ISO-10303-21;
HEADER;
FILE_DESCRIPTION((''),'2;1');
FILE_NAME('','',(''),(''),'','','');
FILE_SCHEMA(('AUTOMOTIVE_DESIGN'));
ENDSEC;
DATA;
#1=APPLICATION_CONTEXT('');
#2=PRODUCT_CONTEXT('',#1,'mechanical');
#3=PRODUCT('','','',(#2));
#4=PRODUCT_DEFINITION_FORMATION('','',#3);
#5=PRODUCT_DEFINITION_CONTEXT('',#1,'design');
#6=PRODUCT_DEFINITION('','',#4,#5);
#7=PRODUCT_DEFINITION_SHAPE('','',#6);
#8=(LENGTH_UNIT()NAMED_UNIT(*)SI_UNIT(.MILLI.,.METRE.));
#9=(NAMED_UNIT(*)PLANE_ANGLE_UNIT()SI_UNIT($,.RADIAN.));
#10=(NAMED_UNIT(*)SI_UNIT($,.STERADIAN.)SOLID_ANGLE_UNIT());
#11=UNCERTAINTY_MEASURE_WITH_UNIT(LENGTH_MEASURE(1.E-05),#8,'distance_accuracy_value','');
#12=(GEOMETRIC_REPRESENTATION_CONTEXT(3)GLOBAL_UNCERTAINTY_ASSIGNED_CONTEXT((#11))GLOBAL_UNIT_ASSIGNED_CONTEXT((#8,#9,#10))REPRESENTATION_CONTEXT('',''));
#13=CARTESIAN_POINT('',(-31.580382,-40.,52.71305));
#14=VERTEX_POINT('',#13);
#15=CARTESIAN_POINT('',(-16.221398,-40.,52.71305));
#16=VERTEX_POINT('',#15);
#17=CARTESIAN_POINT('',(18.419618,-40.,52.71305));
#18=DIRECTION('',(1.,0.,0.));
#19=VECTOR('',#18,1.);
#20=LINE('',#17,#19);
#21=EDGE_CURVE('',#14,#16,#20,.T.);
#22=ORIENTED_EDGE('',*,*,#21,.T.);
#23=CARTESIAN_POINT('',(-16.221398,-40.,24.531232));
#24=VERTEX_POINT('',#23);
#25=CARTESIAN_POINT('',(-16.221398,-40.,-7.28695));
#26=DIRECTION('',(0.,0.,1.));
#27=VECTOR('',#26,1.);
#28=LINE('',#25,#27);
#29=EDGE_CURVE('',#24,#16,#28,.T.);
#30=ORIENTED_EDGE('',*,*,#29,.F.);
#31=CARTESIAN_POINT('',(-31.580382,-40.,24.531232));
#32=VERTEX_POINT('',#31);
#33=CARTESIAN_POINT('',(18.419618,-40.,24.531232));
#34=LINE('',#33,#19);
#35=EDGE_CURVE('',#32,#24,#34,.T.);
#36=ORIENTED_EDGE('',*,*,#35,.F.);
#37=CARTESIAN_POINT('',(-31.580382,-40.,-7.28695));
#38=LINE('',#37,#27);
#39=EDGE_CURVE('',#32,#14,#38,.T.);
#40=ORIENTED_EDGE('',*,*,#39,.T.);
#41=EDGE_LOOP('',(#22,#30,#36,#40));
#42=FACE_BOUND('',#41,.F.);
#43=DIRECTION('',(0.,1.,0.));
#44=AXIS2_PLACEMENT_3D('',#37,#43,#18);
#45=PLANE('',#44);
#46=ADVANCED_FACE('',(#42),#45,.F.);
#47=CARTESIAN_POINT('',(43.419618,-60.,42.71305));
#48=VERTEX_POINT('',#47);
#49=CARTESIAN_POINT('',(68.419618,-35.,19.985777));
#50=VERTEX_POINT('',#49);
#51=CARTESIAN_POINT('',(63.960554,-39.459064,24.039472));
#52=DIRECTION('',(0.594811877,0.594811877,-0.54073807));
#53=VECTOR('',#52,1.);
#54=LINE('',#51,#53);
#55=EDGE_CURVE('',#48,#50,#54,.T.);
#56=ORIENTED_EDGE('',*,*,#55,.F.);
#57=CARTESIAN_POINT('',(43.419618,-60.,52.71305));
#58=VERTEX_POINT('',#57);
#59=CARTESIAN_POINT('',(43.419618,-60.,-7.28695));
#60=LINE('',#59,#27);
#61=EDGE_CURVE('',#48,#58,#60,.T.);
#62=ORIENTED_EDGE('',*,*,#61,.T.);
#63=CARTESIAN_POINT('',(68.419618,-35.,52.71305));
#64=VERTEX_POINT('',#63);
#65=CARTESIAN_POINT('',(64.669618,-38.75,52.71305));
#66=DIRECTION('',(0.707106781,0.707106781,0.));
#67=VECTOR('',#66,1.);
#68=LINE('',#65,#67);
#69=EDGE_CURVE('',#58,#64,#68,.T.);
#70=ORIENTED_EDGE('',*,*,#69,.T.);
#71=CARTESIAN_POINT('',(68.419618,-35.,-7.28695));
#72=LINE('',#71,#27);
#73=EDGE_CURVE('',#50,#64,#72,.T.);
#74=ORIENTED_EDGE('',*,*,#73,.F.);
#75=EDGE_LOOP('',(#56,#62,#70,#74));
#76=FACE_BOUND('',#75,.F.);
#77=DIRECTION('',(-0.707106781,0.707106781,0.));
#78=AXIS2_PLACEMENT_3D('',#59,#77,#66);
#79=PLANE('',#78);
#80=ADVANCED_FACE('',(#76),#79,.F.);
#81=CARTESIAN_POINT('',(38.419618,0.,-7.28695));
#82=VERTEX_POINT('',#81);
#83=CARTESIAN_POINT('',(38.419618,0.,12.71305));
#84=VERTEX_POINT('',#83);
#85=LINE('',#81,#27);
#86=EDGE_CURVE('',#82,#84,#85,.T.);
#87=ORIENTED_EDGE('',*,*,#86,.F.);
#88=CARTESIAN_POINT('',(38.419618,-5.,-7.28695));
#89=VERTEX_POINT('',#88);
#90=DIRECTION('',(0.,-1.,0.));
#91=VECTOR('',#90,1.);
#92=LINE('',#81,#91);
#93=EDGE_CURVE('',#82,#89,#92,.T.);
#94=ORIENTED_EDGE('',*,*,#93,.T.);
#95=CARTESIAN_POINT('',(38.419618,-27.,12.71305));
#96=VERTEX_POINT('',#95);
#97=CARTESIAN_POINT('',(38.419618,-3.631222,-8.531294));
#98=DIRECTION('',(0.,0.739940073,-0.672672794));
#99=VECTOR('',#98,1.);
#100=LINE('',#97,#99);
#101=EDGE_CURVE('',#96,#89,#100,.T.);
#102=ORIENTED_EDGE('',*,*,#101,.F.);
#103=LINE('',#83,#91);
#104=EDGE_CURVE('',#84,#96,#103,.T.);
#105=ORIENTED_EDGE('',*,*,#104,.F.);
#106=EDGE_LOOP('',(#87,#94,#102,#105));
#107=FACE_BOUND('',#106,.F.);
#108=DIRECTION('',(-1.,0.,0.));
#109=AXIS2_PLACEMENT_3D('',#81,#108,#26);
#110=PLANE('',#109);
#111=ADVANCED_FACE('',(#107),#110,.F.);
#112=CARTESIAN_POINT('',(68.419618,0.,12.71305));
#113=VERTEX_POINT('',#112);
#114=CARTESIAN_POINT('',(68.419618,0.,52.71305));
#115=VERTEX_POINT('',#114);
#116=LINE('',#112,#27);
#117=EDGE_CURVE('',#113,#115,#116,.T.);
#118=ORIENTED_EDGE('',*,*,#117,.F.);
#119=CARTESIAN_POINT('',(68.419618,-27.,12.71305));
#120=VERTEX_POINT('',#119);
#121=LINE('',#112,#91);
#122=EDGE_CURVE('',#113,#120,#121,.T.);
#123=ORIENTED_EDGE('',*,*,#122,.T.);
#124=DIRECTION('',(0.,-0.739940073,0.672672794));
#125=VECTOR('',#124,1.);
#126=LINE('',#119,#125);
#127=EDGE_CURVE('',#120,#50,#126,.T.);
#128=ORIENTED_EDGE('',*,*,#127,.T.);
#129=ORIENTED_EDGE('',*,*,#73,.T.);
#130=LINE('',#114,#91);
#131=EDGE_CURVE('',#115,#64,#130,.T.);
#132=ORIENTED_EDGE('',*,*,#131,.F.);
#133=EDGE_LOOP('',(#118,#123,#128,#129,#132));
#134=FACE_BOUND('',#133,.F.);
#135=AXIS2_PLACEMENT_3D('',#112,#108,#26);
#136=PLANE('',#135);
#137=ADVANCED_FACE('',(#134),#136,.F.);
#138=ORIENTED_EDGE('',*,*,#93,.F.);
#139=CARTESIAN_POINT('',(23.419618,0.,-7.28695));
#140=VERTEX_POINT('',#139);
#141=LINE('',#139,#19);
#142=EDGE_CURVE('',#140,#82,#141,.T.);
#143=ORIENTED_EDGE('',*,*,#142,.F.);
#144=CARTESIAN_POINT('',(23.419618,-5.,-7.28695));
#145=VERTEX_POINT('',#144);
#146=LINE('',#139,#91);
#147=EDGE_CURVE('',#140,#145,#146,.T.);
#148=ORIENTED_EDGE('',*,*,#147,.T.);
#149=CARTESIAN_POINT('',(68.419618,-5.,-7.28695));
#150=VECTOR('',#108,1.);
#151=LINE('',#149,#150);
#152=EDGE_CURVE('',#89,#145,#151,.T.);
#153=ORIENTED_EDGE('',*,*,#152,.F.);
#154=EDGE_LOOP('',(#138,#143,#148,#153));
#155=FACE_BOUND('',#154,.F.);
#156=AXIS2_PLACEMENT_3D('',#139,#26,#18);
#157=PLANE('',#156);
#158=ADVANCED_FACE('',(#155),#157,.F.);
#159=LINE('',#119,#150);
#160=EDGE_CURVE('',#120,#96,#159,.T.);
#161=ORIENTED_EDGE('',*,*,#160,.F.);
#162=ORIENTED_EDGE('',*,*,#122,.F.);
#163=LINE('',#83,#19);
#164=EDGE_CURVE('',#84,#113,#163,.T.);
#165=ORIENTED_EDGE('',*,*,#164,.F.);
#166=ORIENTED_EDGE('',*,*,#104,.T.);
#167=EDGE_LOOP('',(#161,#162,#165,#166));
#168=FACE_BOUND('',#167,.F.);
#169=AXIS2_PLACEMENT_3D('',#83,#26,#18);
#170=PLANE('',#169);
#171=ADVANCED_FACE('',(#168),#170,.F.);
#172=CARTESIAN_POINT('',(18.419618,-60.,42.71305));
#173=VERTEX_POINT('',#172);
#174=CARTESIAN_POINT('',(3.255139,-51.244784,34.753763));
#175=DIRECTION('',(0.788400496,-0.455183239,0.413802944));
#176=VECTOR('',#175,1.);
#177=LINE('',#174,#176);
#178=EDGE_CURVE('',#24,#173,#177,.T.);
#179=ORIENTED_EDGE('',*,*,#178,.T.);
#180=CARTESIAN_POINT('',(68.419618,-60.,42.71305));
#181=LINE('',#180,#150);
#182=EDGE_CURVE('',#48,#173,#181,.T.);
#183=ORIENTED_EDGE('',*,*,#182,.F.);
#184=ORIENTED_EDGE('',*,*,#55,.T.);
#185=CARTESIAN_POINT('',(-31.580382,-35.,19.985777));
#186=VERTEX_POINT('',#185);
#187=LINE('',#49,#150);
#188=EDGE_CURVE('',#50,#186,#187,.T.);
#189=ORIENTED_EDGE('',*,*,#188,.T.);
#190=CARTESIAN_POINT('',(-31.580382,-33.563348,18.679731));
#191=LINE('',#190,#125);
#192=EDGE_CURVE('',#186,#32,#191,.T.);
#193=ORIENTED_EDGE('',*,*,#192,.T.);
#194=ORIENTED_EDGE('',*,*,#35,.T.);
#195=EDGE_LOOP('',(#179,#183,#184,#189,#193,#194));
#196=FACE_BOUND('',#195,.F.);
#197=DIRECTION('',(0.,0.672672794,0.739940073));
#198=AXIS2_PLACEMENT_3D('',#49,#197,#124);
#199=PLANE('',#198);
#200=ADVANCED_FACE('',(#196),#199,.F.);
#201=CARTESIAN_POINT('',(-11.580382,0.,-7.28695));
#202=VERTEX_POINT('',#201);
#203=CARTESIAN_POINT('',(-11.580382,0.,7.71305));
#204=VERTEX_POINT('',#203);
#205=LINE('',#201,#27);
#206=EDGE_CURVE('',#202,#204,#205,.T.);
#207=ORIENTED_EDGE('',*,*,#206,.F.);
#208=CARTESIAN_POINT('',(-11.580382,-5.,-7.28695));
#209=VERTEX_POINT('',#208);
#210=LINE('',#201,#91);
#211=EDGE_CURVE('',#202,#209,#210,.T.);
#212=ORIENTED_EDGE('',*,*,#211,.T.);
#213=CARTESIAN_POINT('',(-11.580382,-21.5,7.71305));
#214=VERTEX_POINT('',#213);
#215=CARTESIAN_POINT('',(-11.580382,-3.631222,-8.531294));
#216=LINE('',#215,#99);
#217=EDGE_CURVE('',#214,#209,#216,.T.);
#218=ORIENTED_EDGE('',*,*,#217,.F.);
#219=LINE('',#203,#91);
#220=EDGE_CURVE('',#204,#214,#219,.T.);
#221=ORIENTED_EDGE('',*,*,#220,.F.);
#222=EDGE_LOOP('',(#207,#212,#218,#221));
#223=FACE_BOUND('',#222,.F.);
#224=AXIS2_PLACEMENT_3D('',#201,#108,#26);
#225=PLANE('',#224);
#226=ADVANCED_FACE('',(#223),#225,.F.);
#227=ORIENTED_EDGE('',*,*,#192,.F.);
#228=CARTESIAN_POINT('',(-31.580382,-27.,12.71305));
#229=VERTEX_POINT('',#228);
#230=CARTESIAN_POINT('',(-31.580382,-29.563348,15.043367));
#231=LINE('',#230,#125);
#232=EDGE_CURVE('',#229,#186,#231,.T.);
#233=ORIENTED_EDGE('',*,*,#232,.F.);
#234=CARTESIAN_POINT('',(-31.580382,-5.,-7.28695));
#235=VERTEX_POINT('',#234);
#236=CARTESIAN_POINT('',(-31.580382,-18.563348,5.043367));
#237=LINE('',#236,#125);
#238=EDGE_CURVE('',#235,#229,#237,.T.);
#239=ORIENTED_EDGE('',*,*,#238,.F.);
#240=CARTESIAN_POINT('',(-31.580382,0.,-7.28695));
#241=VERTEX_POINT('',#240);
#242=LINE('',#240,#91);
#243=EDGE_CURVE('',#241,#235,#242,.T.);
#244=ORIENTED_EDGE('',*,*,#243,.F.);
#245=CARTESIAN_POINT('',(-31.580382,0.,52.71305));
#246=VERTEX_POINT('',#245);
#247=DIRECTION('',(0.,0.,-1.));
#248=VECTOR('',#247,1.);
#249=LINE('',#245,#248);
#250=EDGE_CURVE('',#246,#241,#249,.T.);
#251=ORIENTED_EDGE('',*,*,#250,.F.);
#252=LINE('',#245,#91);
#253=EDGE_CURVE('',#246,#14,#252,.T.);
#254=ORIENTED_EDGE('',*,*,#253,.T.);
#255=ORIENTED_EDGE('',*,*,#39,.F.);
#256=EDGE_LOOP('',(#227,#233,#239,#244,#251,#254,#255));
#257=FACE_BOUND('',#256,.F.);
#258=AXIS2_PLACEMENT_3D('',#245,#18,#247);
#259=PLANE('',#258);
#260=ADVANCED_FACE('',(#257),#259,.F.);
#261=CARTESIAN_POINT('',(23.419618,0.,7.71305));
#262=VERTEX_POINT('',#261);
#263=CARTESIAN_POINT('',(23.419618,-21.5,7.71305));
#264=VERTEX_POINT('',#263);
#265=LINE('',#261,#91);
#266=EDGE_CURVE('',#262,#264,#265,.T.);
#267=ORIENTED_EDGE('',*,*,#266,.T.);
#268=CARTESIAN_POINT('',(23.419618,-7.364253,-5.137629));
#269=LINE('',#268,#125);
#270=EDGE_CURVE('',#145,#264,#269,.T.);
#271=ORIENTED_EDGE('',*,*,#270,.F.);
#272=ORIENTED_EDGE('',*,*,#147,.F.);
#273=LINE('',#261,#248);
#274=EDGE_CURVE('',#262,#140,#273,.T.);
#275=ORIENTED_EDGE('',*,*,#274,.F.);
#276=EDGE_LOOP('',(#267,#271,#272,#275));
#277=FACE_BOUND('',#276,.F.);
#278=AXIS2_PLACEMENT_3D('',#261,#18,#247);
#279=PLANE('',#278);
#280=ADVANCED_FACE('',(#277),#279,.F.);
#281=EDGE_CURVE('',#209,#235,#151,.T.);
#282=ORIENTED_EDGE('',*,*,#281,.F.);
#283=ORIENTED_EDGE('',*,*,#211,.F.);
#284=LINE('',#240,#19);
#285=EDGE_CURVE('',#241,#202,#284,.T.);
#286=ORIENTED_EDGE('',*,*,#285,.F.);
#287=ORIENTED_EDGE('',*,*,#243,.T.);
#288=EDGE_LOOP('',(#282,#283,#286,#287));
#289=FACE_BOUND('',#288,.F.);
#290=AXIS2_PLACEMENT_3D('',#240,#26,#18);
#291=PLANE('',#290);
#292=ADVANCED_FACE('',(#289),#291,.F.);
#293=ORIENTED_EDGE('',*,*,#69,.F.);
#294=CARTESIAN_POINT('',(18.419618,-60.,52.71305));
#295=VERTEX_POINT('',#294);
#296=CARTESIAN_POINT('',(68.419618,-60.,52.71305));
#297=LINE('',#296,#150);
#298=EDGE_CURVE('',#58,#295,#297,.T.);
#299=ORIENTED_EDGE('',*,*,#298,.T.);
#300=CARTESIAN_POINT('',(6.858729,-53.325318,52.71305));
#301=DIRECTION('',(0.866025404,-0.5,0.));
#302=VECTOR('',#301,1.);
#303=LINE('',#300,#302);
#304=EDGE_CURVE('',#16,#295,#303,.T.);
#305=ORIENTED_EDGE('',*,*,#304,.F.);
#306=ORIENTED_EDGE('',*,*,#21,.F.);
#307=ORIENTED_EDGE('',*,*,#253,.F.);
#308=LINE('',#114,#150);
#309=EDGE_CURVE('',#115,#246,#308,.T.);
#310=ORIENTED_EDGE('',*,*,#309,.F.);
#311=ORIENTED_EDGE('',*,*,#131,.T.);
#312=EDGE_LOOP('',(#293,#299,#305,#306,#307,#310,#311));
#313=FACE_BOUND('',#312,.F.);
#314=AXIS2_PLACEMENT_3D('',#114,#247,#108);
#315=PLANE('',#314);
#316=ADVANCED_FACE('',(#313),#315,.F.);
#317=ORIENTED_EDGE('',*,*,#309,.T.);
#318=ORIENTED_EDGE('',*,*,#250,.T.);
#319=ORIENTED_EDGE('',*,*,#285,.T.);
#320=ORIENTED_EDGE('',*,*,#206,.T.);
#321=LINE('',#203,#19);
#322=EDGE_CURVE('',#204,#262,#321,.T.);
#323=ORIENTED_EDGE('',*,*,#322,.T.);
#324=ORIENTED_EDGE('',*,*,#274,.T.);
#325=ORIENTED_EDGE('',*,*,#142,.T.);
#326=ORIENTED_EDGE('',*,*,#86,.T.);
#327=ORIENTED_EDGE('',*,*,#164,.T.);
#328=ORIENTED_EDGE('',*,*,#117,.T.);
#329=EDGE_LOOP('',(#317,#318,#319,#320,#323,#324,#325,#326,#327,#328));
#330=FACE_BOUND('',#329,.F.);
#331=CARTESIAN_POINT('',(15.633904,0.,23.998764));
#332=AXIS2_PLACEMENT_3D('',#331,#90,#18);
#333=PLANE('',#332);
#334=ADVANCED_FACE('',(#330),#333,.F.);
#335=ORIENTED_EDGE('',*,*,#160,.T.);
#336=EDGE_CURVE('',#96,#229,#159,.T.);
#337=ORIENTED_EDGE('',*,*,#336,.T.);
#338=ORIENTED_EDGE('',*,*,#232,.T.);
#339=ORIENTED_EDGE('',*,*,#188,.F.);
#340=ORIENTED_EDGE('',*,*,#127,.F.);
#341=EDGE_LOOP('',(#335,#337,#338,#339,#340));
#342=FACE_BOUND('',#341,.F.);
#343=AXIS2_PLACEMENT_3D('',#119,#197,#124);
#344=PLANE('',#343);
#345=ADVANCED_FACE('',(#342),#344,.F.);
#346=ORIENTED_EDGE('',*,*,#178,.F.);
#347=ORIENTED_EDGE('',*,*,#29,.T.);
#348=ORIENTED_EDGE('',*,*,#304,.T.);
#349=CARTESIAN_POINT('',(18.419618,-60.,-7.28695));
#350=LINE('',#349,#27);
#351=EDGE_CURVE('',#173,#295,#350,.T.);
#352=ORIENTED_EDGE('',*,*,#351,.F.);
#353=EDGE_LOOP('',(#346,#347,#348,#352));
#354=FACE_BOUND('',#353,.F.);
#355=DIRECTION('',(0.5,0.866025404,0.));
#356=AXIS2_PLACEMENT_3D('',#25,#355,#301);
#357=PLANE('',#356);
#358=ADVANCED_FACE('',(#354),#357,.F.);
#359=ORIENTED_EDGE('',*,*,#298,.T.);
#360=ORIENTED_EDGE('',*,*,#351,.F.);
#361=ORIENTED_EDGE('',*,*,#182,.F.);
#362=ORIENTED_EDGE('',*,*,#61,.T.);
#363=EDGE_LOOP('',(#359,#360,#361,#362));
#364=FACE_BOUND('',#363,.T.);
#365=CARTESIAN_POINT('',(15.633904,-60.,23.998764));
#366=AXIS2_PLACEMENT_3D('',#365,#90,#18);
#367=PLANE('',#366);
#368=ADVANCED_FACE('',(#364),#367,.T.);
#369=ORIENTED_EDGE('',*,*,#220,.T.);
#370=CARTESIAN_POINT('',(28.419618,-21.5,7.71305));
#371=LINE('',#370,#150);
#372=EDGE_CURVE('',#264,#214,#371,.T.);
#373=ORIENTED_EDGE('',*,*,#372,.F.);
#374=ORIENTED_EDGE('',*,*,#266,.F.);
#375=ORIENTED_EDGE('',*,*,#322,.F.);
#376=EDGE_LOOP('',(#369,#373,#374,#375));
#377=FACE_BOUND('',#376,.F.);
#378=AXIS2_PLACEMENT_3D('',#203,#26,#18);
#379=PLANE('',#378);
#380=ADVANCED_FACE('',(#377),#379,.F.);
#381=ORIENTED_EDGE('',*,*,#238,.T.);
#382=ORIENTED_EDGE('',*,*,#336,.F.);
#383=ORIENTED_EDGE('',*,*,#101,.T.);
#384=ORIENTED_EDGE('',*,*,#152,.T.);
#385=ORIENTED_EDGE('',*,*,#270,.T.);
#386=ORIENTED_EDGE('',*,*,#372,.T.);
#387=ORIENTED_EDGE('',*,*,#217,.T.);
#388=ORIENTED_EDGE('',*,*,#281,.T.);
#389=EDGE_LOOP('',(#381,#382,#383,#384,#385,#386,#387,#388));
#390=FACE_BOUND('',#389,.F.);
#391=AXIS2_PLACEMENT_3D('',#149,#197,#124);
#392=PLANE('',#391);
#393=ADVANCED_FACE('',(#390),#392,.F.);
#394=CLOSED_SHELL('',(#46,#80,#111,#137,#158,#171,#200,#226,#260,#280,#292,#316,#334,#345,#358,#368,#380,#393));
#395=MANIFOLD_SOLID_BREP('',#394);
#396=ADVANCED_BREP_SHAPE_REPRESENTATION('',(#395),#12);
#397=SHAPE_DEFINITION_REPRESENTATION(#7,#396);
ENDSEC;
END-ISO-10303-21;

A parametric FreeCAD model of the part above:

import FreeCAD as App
import Part
import Sketcher
from FreeCAD import Vector
Q = App.Units.Quantity


def add_polygon(sketch, points):
    """Adds a closed chain of lines whose ends are joined by coincident constraints."""
    first, n = sketch.GeometryCount, len(points)
    for a, b in zip(points, points[1:] + points[:1]):
        sketch.addGeometry(Part.LineSegment(App.Vector(*a, 0), App.Vector(*b, 0)), False)
    for i in range(n):
        sketch.addConstraint(Sketcher.Constraint("Coincident", first + i, 2, first + (i + 1) % n, 1))

doc = App.newDocument("Part")
params = doc.addObject("Spreadsheet::Sheet", "Params")
for row, (alias, value) in enumerate([
    ("sketch1_width", "100 mm"),
    ("sketch1_width2", "20 mm"),
    ("sketch1_width3", "35 mm"),
    ("sketch1_width4", "15 mm"),
    ("sketch1_height", "60 mm"),
    ("pad1_length", "60 mm"),
    ("sketch2_width", "25 mm"),
    ("sketch2_width2", "50 mm"),
    ("sketch2_height", "20 mm"),
    ("sketch3_width", "55 mm"),
    ("sketch3_height", "50 mm"),
], start=1):
    params.set(f"A{row}", alias)
    params.set(f"B{row}", "=" + value)
    params.setAlias(f"B{row}", alias)

body = doc.addObject("PartDesign::Body", "Body")

# Sketch on XZ plane
sketch1 = body.newObject("Sketcher::SketchObject", "Sketch")
sketch1.AttachmentSupport = (doc.getObject("XZ_Plane"), [""])
sketch1.MapMode = "FlatFace"
add_polygon(sketch1, [(68, 53), (-32, 53), (-32, -7), (-12, -7), (-12, 8), (23, 8), (23, -7), (38, -7), (38, 13), (68, 13)])  # lines 0-9
sketch1.addConstraint([
    Sketcher.Constraint("Horizontal", 0),
    Sketcher.Constraint("Vertical", 1),
    Sketcher.Constraint("Horizontal", 2),
    Sketcher.Constraint("Vertical", 3),
    Sketcher.Constraint("Horizontal", 4),
    Sketcher.Constraint("Vertical", 5),
    Sketcher.Constraint("Horizontal", 6),
    Sketcher.Constraint("Vertical", 7),
    Sketcher.Constraint("Horizontal", 8),
    Sketcher.Constraint("Vertical", 9),
    Sketcher.Constraint("Horizontal", 2, 2, 5, 2),
    Sketcher.Constraint("Equal", 6, 3),
    Sketcher.Constraint("Equal", 2, 7),
    Sketcher.Constraint("DistanceX", 0, 2, 0, 1, Q("100 mm")),
    Sketcher.Constraint("DistanceX", 2, 1, 2, 2, Q("20 mm")),
    Sketcher.Constraint("DistanceX", 4, 1, 4, 2, Q("35 mm")),
    Sketcher.Constraint("DistanceX", 6, 1, 6, 2, Q("15 mm")),
    Sketcher.Constraint("DistanceY", 1, 2, 1, 1, Q("60 mm")),
    Sketcher.Constraint("DistanceX", 0, 2, -1, 1, Q("31.580382 mm")),
    Sketcher.Constraint("DistanceY", -1, 1, 0, 2, Q("52.71305 mm")),
])
sketch1.setExpression("Constraints[23]", "Params.sketch1_width")
sketch1.setExpression("Constraints[24]", "Params.sketch1_width2")
sketch1.setExpression("Constraints[25]", "Params.sketch1_width3")
sketch1.setExpression("Constraints[26]", "Params.sketch1_width4")
sketch1.setExpression("Constraints[27]", "Params.sketch1_height")
pad1 = body.newObject("PartDesign::Pad", "Pad")
pad1.Profile = sketch1
pad1.setExpression("Length", "Params.pad1_length")

# Sketch on XY plane
sketch2 = body.newObject("Sketcher::SketchObject", "Sketch001")
sketch2.AttachmentSupport = (doc.getObject("XY_Plane"), [""])
sketch2.MapMode = "FlatFace"
sketch2.AttachmentOffset = App.Placement(Vector(0, 0, -7.28695), App.Rotation())
add_polygon(sketch2, [(68, -60), (43, -60), (68, -35)])  # lines 0-2
add_polygon(sketch2, [(18, -60), (-32, -60), (-32, -40), (-16, -40)])  # lines 3-6
sketch2.addConstraint([
    Sketcher.Constraint("Horizontal", 0),
    Sketcher.Constraint("Vertical", 2),
    Sketcher.Constraint("Horizontal", 3),
    Sketcher.Constraint("Vertical", 4),
    Sketcher.Constraint("Horizontal", 5),
    Sketcher.Constraint("Horizontal", 2, 2, 3, 2),
    Sketcher.Constraint("Equal", 0, 2),
    Sketcher.Constraint("DistanceX", 0, 2, 0, 1, Q("25 mm")),
    Sketcher.Constraint("DistanceX", 3, 2, 3, 1, Q("50 mm")),
    Sketcher.Constraint("DistanceY", 4, 1, 4, 2, Q("20 mm")),
    Sketcher.Constraint("Angle", 6, Q("-30 deg")),
    Sketcher.Constraint("DistanceY", 0, 2, -1, 1, Q("60 mm")),
    Sketcher.Constraint("DistanceX", 3, 2, 0, 2, Q("75 mm")),
    Sketcher.Constraint("DistanceX", -1, 1, 0, 2, Q("43.419618 mm")),
])
sketch2.setExpression("Constraints[14]", "Params.sketch2_width")
sketch2.setExpression("Constraints[15]", "Params.sketch2_width2")
sketch2.setExpression("Constraints[16]", "Params.sketch2_height")
pocket1 = body.newObject("PartDesign::Pocket", "Pocket")
pocket1.Profile = sketch2
pocket1.Type = "ThroughAll"
pocket1.Reversed = True

# Sketch on YZ plane
sketch3 = body.newObject("Sketcher::SketchObject", "Sketch002")
sketch3.AttachmentSupport = (doc.getObject("YZ_Plane"), [""])
sketch3.MapMode = "FlatFace"
sketch3.AttachmentOffset = App.Placement(Vector(0, 0, 68.419618), App.Rotation())
add_polygon(sketch3, [(-60, 43), (-60, -7), (-5, -7), (-27, 13), (-35, 20)])  # lines 0-4
sketch3.addConstraint([
    Sketcher.Constraint("Vertical", 0),
    Sketcher.Constraint("Horizontal", 1),
    Sketcher.Constraint("Parallel", 2, 3),
    Sketcher.Constraint("Parallel", 3, 4),
    Sketcher.Constraint("DistanceX", 1, 1, 1, 2, Q("55 mm")),
    Sketcher.Constraint("DistanceY", 0, 2, 0, 1, Q("50 mm")),
    Sketcher.Constraint("DistanceX", 0, 2, -1, 1, Q("60 mm")),
    Sketcher.Constraint("DistanceX", 2, 2, -1, 1, Q("27 mm")),
    Sketcher.Constraint("DistanceX", 3, 2, -1, 1, Q("35 mm")),
    Sketcher.Constraint("DistanceY", 0, 2, -1, 1, Q("7.28695 mm")),
])
sketch3.setExpression("Constraints[9]", "Params.sketch3_width")
sketch3.setExpression("Constraints[10]", "Params.sketch3_height")
pocket2 = body.newObject("PartDesign::Pocket", "Pocket001")
pocket2.Profile = sketch3
pocket2.Type = "ThroughAll"

doc.recompute()
